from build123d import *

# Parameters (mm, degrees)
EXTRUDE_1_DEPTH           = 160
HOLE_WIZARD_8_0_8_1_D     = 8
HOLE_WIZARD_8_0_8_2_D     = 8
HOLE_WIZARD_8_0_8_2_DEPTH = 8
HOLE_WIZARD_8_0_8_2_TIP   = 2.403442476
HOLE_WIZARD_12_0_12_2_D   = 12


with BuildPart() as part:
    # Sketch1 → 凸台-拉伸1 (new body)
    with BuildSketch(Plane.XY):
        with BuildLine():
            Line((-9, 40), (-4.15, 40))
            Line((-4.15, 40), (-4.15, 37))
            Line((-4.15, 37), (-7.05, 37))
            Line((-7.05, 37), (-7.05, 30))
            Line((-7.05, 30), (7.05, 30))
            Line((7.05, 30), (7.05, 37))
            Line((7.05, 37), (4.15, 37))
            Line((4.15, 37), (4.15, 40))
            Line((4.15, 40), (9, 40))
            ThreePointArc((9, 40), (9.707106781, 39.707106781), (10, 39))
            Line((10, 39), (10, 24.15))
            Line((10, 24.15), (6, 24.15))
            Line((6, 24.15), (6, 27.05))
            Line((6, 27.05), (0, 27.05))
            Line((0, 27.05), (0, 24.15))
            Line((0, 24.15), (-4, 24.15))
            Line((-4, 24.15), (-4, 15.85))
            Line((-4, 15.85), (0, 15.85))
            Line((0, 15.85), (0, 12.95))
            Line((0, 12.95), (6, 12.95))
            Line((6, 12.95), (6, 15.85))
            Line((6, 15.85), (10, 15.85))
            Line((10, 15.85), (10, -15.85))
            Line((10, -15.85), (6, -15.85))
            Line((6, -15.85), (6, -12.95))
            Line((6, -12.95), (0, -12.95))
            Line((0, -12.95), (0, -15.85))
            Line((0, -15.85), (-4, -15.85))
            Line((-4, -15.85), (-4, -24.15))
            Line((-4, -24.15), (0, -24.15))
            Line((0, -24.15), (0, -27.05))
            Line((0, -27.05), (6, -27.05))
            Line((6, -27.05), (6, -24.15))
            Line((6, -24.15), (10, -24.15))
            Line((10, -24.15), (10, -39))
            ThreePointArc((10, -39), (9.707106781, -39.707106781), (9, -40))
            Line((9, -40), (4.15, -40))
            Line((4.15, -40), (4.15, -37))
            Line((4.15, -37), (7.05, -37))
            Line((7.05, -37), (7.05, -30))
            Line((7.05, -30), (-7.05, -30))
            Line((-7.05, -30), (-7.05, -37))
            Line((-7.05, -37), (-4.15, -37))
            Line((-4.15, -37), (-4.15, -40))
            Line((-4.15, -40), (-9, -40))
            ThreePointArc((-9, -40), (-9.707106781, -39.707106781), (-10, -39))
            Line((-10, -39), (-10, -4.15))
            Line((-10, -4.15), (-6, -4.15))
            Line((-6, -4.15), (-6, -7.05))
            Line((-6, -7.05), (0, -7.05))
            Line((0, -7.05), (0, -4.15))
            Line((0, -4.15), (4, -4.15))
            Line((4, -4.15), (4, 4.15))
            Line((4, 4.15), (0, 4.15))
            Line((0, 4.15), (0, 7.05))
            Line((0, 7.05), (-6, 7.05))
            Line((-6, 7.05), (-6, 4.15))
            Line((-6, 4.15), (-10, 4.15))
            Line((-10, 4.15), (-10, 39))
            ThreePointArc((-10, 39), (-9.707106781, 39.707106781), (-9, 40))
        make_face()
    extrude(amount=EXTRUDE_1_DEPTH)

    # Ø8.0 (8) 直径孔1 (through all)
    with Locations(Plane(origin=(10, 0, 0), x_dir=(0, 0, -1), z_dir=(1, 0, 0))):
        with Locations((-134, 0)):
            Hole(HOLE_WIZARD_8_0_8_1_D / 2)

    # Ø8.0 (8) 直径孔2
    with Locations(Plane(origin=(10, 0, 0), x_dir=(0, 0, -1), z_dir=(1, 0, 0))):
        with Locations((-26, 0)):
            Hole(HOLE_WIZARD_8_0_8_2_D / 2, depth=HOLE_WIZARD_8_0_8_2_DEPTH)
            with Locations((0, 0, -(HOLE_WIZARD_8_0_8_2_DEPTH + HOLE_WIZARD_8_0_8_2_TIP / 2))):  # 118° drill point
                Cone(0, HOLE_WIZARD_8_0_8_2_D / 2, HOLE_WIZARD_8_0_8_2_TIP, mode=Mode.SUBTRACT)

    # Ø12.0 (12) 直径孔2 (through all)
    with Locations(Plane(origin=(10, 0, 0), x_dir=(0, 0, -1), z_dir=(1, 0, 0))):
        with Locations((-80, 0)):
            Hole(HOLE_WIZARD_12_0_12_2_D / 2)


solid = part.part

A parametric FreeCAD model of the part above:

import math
import FreeCAD as App
import Part
import Sketcher
from FreeCAD import Vector

doc = App.newDocument("Part")
body = doc.addObject("PartDesign::Body", "Body")

# Sketch on XY plane
sketch1 = body.newObject("Sketcher::SketchObject", "Sketch")
sketch1.AttachmentSupport = (doc.getObject("XY_Plane"), [""])
sketch1.MapMode = "FlatFace"
sketch1.addGeometry([
    Part.LineSegment(Vector(-4.2, 40, 0), Vector(-9, 40, 0)),  # 0
    Part.ArcOfCircle(Part.Circle(Vector(-9, 39, 0), Vector(0, 0, 1), 1), math.radians(90), math.radians(180)),  # 1
    Part.LineSegment(Vector(-10, 39, 0), Vector(-10, 4.2, 0)),  # 2
    Part.LineSegment(Vector(-10, 4.2, 0), Vector(-6, 4.2, 0)),  # 3
    Part.LineSegment(Vector(-6, 4.2, 0), Vector(-6, 7, 0)),  # 4
    Part.LineSegment(Vector(-6, 7, 0), Vector(0, 7, 0)),  # 5
    Part.LineSegment(Vector(0, 7, 0), Vector(0, 4.2, 0)),  # 6
    Part.LineSegment(Vector(0, 4.2, 0), Vector(4, 4.2, 0)),  # 7
    Part.LineSegment(Vector(4, 4.2, 0), Vector(4, -4.2, 0)),  # 8
    Part.LineSegment(Vector(4, -4.2, 0), Vector(0, -4.2, 0)),  # 9
    Part.LineSegment(Vector(0, -4.2, 0), Vector(0, -7, 0)),  # 10
    Part.LineSegment(Vector(0, -7, 0), Vector(-6, -7, 0)),  # 11
    Part.LineSegment(Vector(-6, -7, 0), Vector(-6, -4.2, 0)),  # 12
    Part.LineSegment(Vector(-6, -4.2, 0), Vector(-10, -4.2, 0)),  # 13
    Part.LineSegment(Vector(-10, -4.2, 0), Vector(-10, -39, 0)),  # 14
    Part.ArcOfCircle(Part.Circle(Vector(-9, -39, 0), Vector(0, 0, 1), 1), math.radians(-180), math.radians(-90)),  # 15
    Part.LineSegment(Vector(-9, -40, 0), Vector(-4.2, -40, 0)),  # 16
    Part.LineSegment(Vector(-4.2, -40, 0), Vector(-4.2, -37, 0)),  # 17
    Part.LineSegment(Vector(-4.2, -37, 0), Vector(-7, -37, 0)),  # 18
    Part.LineSegment(Vector(-7, -37, 0), Vector(-7, -30, 0)),  # 19
    Part.LineSegment(Vector(-7, -30, 0), Vector(7, -30, 0)),  # 20
    Part.LineSegment(Vector(7, -30, 0), Vector(7, -37, 0)),  # 21
    Part.LineSegment(Vector(7, -37, 0), Vector(4.2, -37, 0)),  # 22
    Part.LineSegment(Vector(4.2, -37, 0), Vector(4.2, -40, 0)),  # 23
    Part.LineSegment(Vector(4.2, -40, 0), Vector(9, -40, 0)),  # 24
    Part.ArcOfCircle(Part.Circle(Vector(9, -39, 0), Vector(0, 0, 1), 1), math.radians(-90), math.radians(0)),  # 25
    Part.LineSegment(Vector(10, -39, 0), Vector(10, -24.1, 0)),  # 26
    Part.LineSegment(Vector(10, -24.1, 0), Vector(6, -24.1, 0)),  # 27
    Part.LineSegment(Vector(6, -24.1, 0), Vector(6, -27.1, 0)),  # 28
    Part.LineSegment(Vector(6, -27.1, 0), Vector(0, -27.1, 0)),  # 29
    Part.LineSegment(Vector(0, -27.1, 0), Vector(0, -24.1, 0)),  # 30
    Part.LineSegment(Vector(0, -24.1, 0), Vector(-4, -24.1, 0)),  # 31
    Part.LineSegment(Vector(-4, -24.1, 0), Vector(-4, -15.8, 0)),  # 32
    Part.LineSegment(Vector(-4, -15.8, 0), Vector(0, -15.8, 0)),  # 33
    Part.LineSegment(Vector(0, -15.8, 0), Vector(0, -12.9, 0)),  # 34
    Part.LineSegment(Vector(0, -12.9, 0), Vector(6, -12.9, 0)),  # 35
    Part.LineSegment(Vector(6, -12.9, 0), Vector(6, -15.8, 0)),  # 36
    Part.LineSegment(Vector(6, -15.8, 0), Vector(10, -15.8, 0)),  # 37
    Part.LineSegment(Vector(10, -15.8, 0), Vector(10, 15.8, 0)),  # 38
    Part.LineSegment(Vector(10, 15.8, 0), Vector(6, 15.8, 0)),  # 39
    Part.LineSegment(Vector(6, 15.8, 0), Vector(6, 12.9, 0)),  # 40
    Part.LineSegment(Vector(6, 12.9, 0), Vector(0, 12.9, 0)),  # 41
    Part.LineSegment(Vector(0, 12.9, 0), Vector(0, 15.8, 0)),  # 42
    Part.LineSegment(Vector(0, 15.8, 0), Vector(-4, 15.8, 0)),  # 43
    Part.LineSegment(Vector(-4, 15.8, 0), Vector(-4, 24.1, 0)),  # 44
    Part.LineSegment(Vector(-4, 24.1, 0), Vector(0, 24.1, 0)),  # 45
    Part.LineSegment(Vector(0, 24.1, 0), Vector(0, 27.1, 0)),  # 46
    Part.LineSegment(Vector(0, 27.1, 0), Vector(6, 27.1, 0)),  # 47
    Part.LineSegment(Vector(6, 27.1, 0), Vector(6, 24.1, 0)),  # 48
    Part.LineSegment(Vector(6, 24.1, 0), Vector(10, 24.1, 0)),  # 49
    Part.LineSegment(Vector(10, 24.1, 0), Vector(10, 39, 0)),  # 50
    Part.ArcOfCircle(Part.Circle(Vector(9, 39, 0), Vector(0, 0, 1), 1), math.radians(0), math.radians(90)),  # 51
    Part.LineSegment(Vector(9, 40, 0), Vector(4.2, 40, 0)),  # 52
    Part.LineSegment(Vector(4.2, 40, 0), Vector(4.2, 37, 0)),  # 53
    Part.LineSegment(Vector(4.2, 37, 0), Vector(7, 37, 0)),  # 54
    Part.LineSegment(Vector(7, 37, 0), Vector(7, 30, 0)),  # 55
    Part.LineSegment(Vector(7, 30, 0), Vector(-7, 30, 0)),  # 56
    Part.LineSegment(Vector(-7, 30, 0), Vector(-7, 37, 0)),  # 57
    Part.LineSegment(Vector(-7, 37, 0), Vector(-4.2, 37, 0)),  # 58
    Part.LineSegment(Vector(-4.2, 37, 0), Vector(-4.2, 40, 0)),  # 59
], False)
sketch1.addConstraint([
    Sketcher.Constraint("Tangent", 0, 2, 1, 1),
    Sketcher.Constraint("Tangent", 1, 2, 2, 1),
    Sketcher.Constraint("Coincident", 2, 2, 3, 1),
    Sketcher.Constraint("Coincident", 3, 2, 4, 1),
    Sketcher.Constraint("Coincident", 4, 2, 5, 1),
    Sketcher.Constraint("Coincident", 5, 2, 6, 1),
    Sketcher.Constraint("Coincident", 6, 2, 7, 1),
    Sketcher.Constraint("Coincident", 7, 2, 8, 1),
    Sketcher.Constraint("Coincident", 8, 2, 9, 1),
    Sketcher.Constraint("Coincident", 9, 2, 10, 1),
    Sketcher.Constraint("Coincident", 10, 2, 11, 1),
    Sketcher.Constraint("Coincident", 11, 2, 12, 1),
    Sketcher.Constraint("Coincident", 12, 2, 13, 1),
    Sketcher.Constraint("Coincident", 13, 2, 14, 1),
    Sketcher.Constraint("Tangent", 14, 2, 15, 1),
    Sketcher.Constraint("Tangent", 15, 2, 16, 1),
    Sketcher.Constraint("Coincident", 16, 2, 17, 1),
    Sketcher.Constraint("Coincident", 17, 2, 18, 1),
    Sketcher.Constraint("Coincident", 18, 2, 19, 1),
    Sketcher.Constraint("Coincident", 19, 2, 20, 1),
    Sketcher.Constraint("Coincident", 20, 2, 21, 1),
    Sketcher.Constraint("Coincident", 21, 2, 22, 1),
    Sketcher.Constraint("Coincident", 22, 2, 23, 1),
    Sketcher.Constraint("Coincident", 23, 2, 24, 1),
    Sketcher.Constraint("Tangent", 24, 2, 25, 1),
    Sketcher.Constraint("Tangent", 25, 2, 26, 1),
    Sketcher.Constraint("Coincident", 26, 2, 27, 1),
    Sketcher.Constraint("Coincident", 27, 2, 28, 1),
    Sketcher.Constraint("Coincident", 28, 2, 29, 1),
    Sketcher.Constraint("Coincident", 29, 2, 30, 1),
    Sketcher.Constraint("Coincident", 30, 2, 31, 1),
    Sketcher.Constraint("Coincident", 31, 2, 32, 1),
    Sketcher.Constraint("Coincident", 32, 2, 33, 1),
    Sketcher.Constraint("Coincident", 33, 2, 34, 1),
    Sketcher.Constraint("Coincident", 34, 2, 35, 1),
    Sketcher.Constraint("Coincident", 35, 2, 36, 1),
    Sketcher.Constraint("Coincident", 36, 2, 37, 1),
    Sketcher.Constraint("Coincident", 37, 2, 38, 1),
    Sketcher.Constraint("Coincident", 38, 2, 39, 1),
    Sketcher.Constraint("Coincident", 39, 2, 40, 1),
    Sketcher.Constraint("Coincident", 40, 2, 41, 1),
    Sketcher.Constraint("Coincident", 41, 2, 42, 1),
    Sketcher.Constraint("Coincident", 42, 2, 43, 1),
    Sketcher.Constraint("Coincident", 43, 2, 44, 1),
    Sketcher.Constraint("Coincident", 44, 2, 45, 1),
    Sketcher.Constraint("Coincident", 45, 2, 46, 1),
    Sketcher.Constraint("Coincident", 46, 2, 47, 1),
    Sketcher.Constraint("Coincident", 47, 2, 48, 1),
    Sketcher.Constraint("Coincident", 48, 2, 49, 1),
    Sketcher.Constraint("Coincident", 49, 2, 50, 1),
    Sketcher.Constraint("Tangent", 50, 2, 51, 1),
    Sketcher.Constraint("Tangent", 51, 2, 52, 1),
    Sketcher.Constraint("Coincident", 52, 2, 53, 1),
    Sketcher.Constraint("Coincident", 53, 2, 54, 1),
    Sketcher.Constraint("Coincident", 54, 2, 55, 1),
    Sketcher.Constraint("Coincident", 55, 2, 56, 1),
    Sketcher.Constraint("Coincident", 56, 2, 57, 1),
    Sketcher.Constraint("Coincident", 57, 2, 58, 1),
    Sketcher.Constraint("Coincident", 58, 2, 59, 1),
    Sketcher.Constraint("Coincident", 59, 2, 0, 1),
    Sketcher.Constraint("Horizontal", 0),
    Sketcher.Constraint("Vertical", 2),
    Sketcher.Constraint("Horizontal", 3),
    Sketcher.Constraint("Vertical", 4),
    Sketcher.Constraint("Horizontal", 5),
    Sketcher.Constraint("Vertical", 6),
    Sketcher.Constraint("Horizontal", 7),
    Sketcher.Constraint("Vertical", 8),
    Sketcher.Constraint("Horizontal", 9),
    Sketcher.Constraint("Vertical", 10),
    Sketcher.Constraint("Horizontal", 11),
    Sketcher.Constraint("Vertical", 12),
    Sketcher.Constraint("Horizontal", 13),
    Sketcher.Constraint("Vertical", 14),
    Sketcher.Constraint("Horizontal", 16),
    Sketcher.Constraint("Vertical", 17),
    Sketcher.Constraint("Horizontal", 18),
    Sketcher.Constraint("Vertical", 19),
    Sketcher.Constraint("Horizontal", 20),
    Sketcher.Constraint("Vertical", 21),
    Sketcher.Constraint("Horizontal", 22),
    Sketcher.Constraint("Vertical", 23),
    Sketcher.Constraint("Horizontal", 24),
    Sketcher.Constraint("Vertical", 26),
    Sketcher.Constraint("Horizontal", 27),
    Sketcher.Constraint("Vertical", 28),
    Sketcher.Constraint("Horizontal", 29),
    Sketcher.Constraint("Vertical", 30),
    Sketcher.Constraint("Horizontal", 31),
    Sketcher.Constraint("Vertical", 32),
    Sketcher.Constraint("Horizontal", 33),
    Sketcher.Constraint("Vertical", 34),
    Sketcher.Constraint("Horizontal", 35),
    Sketcher.Constraint("Vertical", 36),
    Sketcher.Constraint("Horizontal", 37),
    Sketcher.Constraint("Vertical", 38),
    Sketcher.Constraint("Horizontal", 39),
    Sketcher.Constraint("Vertical", 40),
    Sketcher.Constraint("Horizontal", 41),
    Sketcher.Constraint("Vertical", 42),
    Sketcher.Constraint("Horizontal", 43),
    Sketcher.Constraint("Vertical", 44),
    Sketcher.Constraint("Horizontal", 45),
    Sketcher.Constraint("Vertical", 46),
    Sketcher.Constraint("Horizontal", 47),
    Sketcher.Constraint("Vertical", 48),
    Sketcher.Constraint("Horizontal", 49),
    Sketcher.Constraint("Vertical", 50),
    Sketcher.Constraint("Horizontal", 52),
    Sketcher.Constraint("Vertical", 53),
    Sketcher.Constraint("Horizontal", 54),
    Sketcher.Constraint("Vertical", 55),
    Sketcher.Constraint("Horizontal", 56),
    Sketcher.Constraint("Vertical", 57),
    Sketcher.Constraint("Horizontal", 58),
    Sketcher.Constraint("Vertical", 59),
    Sketcher.Constraint("Equal", 1, 15),
    Sketcher.Constraint("Equal", 15, 25),
    Sketcher.Constraint("Equal", 25, 51),
    Sketcher.Constraint("Symmetric", 1, 3, 25, 3, -1, 1),
    Sketcher.Constraint("Symmetric", 15, 3, 51, 3, -1, 1),
    Sketcher.Constraint("Symmetric", 6, 2, 9, 2, -1, 1),
    Sketcher.Constraint("Symmetric", 34, 2, 41, 2, -1, 1),
    Sketcher.Constraint("Symmetric", 30, 2, 45, 2, -1, 1),
    Sketcher.Constraint("Symmetric", 17, 2, 53, 2, -1, 1),
    Sketcher.Constraint("Symmetric", 19, 2, 55, 2, -1, 1),
    Sketcher.Constraint("Symmetric", 21, 2, 57, 2, -1, 1),
    Sketcher.Constraint("Symmetric", 15, 3, 25, 3, -2),
    Sketcher.Constraint("Symmetric", 18, 2, 21, 2, -2),
    Sketcher.Constraint("Symmetric", 5, 2, 10, 2, -1),
    Sketcher.Constraint("Symmetric", 3, 2, 12, 2, -1),
    Sketcher.Constraint("Symmetric", 36, 2, 39, 2, -1),
    Sketcher.Constraint("Symmetric", 33, 2, 42, 2, -1),
    Sketcher.Constraint("Symmetric", 29, 2, 46, 2, -1),
    Sketcher.Constraint("Symmetric", 27, 2, 48, 2, -1),
    Sketcher.Constraint("Horizontal", 3, 2, 6, 2),
    Sketcher.Constraint("Horizontal", 27, 2, 30, 2),
    Sketcher.Constraint("Horizontal", 33, 2, 36, 2),
    Sketcher.Constraint("Vertical", 28, 2, 35, 2),
    Sketcher.Constraint("Vertical", 26, 2, 37, 2),
    Sketcher.Constraint("Vertical", 32, 2, 43, 2),
    Sketcher.Constraint("Vertical", 23, 2, 52, 2),
    Sketcher.Constraint("Vertical", 17, 2, 58, 2),
    Sketcher.Constraint("Equal", 3, 7),
    Sketcher.Constraint("Equal", 13, 27),
    Sketcher.Constraint("Equal", 27, 31),
    Sketcher.Constraint("Equal", 58, 4),
    Sketcher.Constraint("Equal", 12, 28),
    Sketcher.Constraint("Equal", 8, 32),
    Sketcher.Constraint("Equal", 30, 34),
    Sketcher.Constraint("Radius", 1, 1.0),
    Sketcher.Constraint("DistanceX", 3, 1, 3, 2, 4.0),
    Sketcher.Constraint("DistanceX", 5, 1, 5, 2, 6.0),
    Sketcher.Constraint("DistanceY", 17, 1, 17, 2, 3.0),
    Sketcher.Constraint("DistanceY", 19, 1, 19, 2, 7.0),
    Sketcher.Constraint("DistanceX", 18, 2, 18, 1, 2.9),
    Sketcher.Constraint("DistanceX", 20, 1, 20, 2, 14.1),
    Sketcher.Constraint("DistanceY", 8, 2, 8, 1, 8.3),
    Sketcher.Constraint("DistanceY", 38, 1, 38, 2, 31.7),
    Sketcher.Constraint("DistanceY", -1, 1, 1, 3, 39.0),
])
pad1 = body.newObject("PartDesign::Pad", "Pad")
pad1.Profile = sketch1
pad1.Length = 160

# Sketch on YZ plane
sketch2 = body.newObject("Sketcher::SketchObject", "Sketch001")
sketch2.AttachmentSupport = (doc.getObject("YZ_Plane"), [""])
sketch2.MapMode = "FlatFace"
sketch2.AttachmentOffset = App.Placement(Vector(0, 0, 10), App.Rotation())
sketch2.addGeometry(Part.Circle(Vector(0, 134, 0), Vector(0, 0, 1), 4), False)
sketch2.addConstraint([
    Sketcher.Constraint("PointOnObject", 0, 3, -2),
    Sketcher.Constraint("Diameter", 0, 8.0),
    Sketcher.Constraint("DistanceY", -1, 1, 0, 3, 134.0),
])
doc.recompute()
hole = body.newObject("PartDesign::Hole", "Hole")
hole.Profile = sketch2
hole.ThreadType = "None"
hole.Diameter = 8
hole.DepthType = "ThroughAll"

# Sketch on YZ plane
sketch3 = body.newObject("Sketcher::SketchObject", "Sketch002")
sketch3.AttachmentSupport = (doc.getObject("YZ_Plane"), [""])
sketch3.MapMode = "FlatFace"
sketch3.AttachmentOffset = App.Placement(Vector(0, 0, 10), App.Rotation())
sketch3.addGeometry(Part.Circle(Vector(0, 26, 0), Vector(0, 0, 1), 4), False)
sketch3.addConstraint([
    Sketcher.Constraint("PointOnObject", 0, 3, -2),
    Sketcher.Constraint("Diameter", 0, 8.0),
    Sketcher.Constraint("DistanceY", -1, 1, 0, 3, 26.0),
])
doc.recompute()
hole2 = body.newObject("PartDesign::Hole", "Hole001")
hole2.Profile = sketch3
hole2.ThreadType = "None"
hole2.Diameter = 8
hole2.DepthType = "Dimension"
hole2.Depth = 8
hole2.DrillPoint = "Angled"
hole2.DrillPointAngle = 118

# Sketch on YZ plane
sketch4 = body.newObject("Sketcher::SketchObject", "Sketch003")
sketch4.AttachmentSupport = (doc.getObject("YZ_Plane"), [""])
sketch4.MapMode = "FlatFace"
sketch4.AttachmentOffset = App.Placement(Vector(0, 0, 10), App.Rotation())
sketch4.addGeometry(Part.Circle(Vector(0, 80, 0), Vector(0, 0, 1), 6), False)
sketch4.addConstraint([
    Sketcher.Constraint("PointOnObject", 0, 3, -2),
    Sketcher.Constraint("Diameter", 0, 12.0),
    Sketcher.Constraint("DistanceY", -1, 1, 0, 3, 80.0),
])
doc.recompute()
hole3 = body.newObject("PartDesign::Hole", "Hole002")
hole3.Profile = sketch4
hole3.ThreadType = "None"
hole3.Diameter = 12
hole3.DepthType = "ThroughAll"

doc.recompute()
